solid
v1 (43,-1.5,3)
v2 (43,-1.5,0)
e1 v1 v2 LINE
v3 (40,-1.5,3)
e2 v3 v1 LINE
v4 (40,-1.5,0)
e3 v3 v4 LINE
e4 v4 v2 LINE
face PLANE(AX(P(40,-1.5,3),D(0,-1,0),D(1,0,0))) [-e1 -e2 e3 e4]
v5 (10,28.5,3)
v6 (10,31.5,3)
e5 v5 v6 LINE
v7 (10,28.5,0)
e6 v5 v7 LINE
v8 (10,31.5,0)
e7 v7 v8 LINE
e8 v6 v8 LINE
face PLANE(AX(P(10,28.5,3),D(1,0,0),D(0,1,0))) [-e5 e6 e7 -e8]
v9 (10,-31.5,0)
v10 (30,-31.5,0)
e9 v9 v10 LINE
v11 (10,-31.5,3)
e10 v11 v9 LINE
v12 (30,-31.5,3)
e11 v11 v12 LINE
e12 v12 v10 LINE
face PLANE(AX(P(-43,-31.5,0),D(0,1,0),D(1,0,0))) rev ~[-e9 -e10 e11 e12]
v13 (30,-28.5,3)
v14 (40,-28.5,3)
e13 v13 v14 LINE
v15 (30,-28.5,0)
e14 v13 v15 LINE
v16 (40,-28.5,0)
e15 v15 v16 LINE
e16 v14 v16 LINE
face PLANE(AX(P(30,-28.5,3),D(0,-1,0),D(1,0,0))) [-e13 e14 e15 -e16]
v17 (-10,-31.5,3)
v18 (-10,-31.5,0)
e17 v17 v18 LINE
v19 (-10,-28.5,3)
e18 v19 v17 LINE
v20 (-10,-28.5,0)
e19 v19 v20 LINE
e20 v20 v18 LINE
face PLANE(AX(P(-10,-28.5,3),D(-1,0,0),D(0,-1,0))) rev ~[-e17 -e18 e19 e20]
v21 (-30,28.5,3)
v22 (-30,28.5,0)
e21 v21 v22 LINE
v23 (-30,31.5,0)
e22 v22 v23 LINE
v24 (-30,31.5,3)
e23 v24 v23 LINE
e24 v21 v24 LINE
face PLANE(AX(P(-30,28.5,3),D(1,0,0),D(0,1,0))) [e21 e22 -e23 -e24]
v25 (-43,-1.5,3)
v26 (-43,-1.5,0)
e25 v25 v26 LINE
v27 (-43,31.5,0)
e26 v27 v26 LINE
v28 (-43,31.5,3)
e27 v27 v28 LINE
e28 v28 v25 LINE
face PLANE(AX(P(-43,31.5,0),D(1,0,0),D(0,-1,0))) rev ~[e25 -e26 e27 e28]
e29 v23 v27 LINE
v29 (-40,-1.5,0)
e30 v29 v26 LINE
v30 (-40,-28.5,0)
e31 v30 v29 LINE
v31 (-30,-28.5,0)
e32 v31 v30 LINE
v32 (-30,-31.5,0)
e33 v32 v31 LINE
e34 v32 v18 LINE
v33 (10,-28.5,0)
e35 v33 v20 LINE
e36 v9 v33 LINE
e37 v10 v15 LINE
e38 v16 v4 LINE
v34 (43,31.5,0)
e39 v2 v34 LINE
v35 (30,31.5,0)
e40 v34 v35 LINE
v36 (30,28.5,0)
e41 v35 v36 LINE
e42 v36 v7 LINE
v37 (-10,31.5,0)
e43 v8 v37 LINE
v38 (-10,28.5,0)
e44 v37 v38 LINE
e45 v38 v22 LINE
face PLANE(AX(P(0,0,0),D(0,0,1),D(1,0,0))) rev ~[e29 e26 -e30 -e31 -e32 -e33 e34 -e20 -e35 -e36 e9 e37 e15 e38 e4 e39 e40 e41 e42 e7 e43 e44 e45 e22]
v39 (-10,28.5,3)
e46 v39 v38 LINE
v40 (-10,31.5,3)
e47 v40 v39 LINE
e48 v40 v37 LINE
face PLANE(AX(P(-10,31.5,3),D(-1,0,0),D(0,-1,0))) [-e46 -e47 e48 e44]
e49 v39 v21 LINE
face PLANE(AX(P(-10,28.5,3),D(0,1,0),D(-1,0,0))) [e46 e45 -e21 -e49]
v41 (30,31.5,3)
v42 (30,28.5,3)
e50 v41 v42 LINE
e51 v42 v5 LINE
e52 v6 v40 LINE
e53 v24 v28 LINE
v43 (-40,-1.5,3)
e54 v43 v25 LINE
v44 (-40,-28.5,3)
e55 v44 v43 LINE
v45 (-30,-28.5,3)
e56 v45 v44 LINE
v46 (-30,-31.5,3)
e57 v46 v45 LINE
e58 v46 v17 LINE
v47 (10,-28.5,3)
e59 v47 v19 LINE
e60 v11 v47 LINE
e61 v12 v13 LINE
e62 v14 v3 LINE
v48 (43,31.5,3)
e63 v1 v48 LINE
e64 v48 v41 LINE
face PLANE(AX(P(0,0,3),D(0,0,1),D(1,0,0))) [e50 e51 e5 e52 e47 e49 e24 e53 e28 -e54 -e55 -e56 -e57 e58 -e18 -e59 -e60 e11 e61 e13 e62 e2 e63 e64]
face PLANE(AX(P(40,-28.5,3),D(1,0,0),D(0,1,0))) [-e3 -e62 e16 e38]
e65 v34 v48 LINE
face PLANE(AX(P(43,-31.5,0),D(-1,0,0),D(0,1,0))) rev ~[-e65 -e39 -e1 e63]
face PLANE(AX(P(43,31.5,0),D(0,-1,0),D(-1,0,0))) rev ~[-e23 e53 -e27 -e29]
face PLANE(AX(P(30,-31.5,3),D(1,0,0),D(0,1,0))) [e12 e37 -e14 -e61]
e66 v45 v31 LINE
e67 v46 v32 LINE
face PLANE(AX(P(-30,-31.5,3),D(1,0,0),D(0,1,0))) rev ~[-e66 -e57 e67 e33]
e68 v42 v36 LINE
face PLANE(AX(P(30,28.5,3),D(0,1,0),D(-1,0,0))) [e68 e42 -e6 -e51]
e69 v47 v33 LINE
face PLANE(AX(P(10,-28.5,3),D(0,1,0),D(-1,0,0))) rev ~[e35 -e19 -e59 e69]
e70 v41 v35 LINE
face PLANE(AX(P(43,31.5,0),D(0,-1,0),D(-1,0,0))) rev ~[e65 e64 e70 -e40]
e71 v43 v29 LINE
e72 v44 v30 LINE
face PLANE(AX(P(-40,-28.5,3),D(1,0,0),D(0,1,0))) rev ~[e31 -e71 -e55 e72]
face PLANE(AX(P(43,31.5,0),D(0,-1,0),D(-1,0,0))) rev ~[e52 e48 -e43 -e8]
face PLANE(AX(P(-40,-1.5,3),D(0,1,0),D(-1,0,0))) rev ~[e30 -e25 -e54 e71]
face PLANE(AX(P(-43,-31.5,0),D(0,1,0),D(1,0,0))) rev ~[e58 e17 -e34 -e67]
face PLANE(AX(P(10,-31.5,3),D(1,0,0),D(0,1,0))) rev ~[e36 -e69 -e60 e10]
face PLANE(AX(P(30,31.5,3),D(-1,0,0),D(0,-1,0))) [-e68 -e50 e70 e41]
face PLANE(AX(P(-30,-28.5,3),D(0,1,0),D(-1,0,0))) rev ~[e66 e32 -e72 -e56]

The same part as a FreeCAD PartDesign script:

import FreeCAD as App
import Part
import Sketcher
from FreeCAD import Vector
Q = App.Units.Quantity

doc = App.newDocument("Part")
body = doc.addObject("PartDesign::Body", "Body")

# Sketch on XY plane
sketch1 = doc.addObject("Sketcher::SketchObject", "Sketch")
body.addObject(sketch1)
sketch1.AttachmentSupport = (doc.XY_Plane, [""])
sketch1.MapMode = "FlatFace"
sketch1.addGeometry([
    Part.LineSegment(Vector(-43, 32, 0), Vector(-43, -32, 0)),
    Part.LineSegment(Vector(-43, -32, 0), Vector(43, -32, 0)),
    Part.LineSegment(Vector(43, -32, 0), Vector(43, 32, 0)),
    Part.LineSegment(Vector(43, 32, 0), Vector(-43, 32, 0)),
], False)
sketch1.addConstraint([
    Sketcher.Constraint("Coincident", 0, 2, 1, 1),
    Sketcher.Constraint("Coincident", 1, 2, 2, 1),
    Sketcher.Constraint("Coincident", 2, 2, 3, 1),
    Sketcher.Constraint("Coincident", 3, 2, 0, 1),
    Sketcher.Constraint("Vertical", 0),
    Sketcher.Constraint("Horizontal", 1),
    Sketcher.Constraint("Vertical", 2),
    Sketcher.Constraint("Horizontal", 3),
    Sketcher.Constraint("Symmetric", 0, 2, 2, 2, -1, 1),
    Sketcher.Constraint("DistanceX", 1, 1, 1, 2, Q("86 mm")),
    Sketcher.Constraint("DistanceY", 0, 2, 0, 1, Q("63 mm")),
])
pad1 = doc.addObject("PartDesign::Pad", "Pad")
body.addObject(pad1)
pad1.Profile = sketch1
pad1.Length = 3

# Sketch on XY plane
sketch2 = doc.addObject("Sketcher::SketchObject", "Sketch001")
body.addObject(sketch2)
sketch2.AttachmentSupport = (doc.XY_Plane, [""])
sketch2.MapMode = "FlatFace"
sketch2.AttachmentOffset = App.Placement(Vector(0, 0, 3), App.Rotation())
sketch2.addGeometry([
    Part.LineSegment(Vector(-43, -1.5, 0), Vector(-43, -31.5, 0)),  # 0
    Part.LineSegment(Vector(-43, -31.5, 0), Vector(-30, -31.5, 0)),  # 1
    Part.LineSegment(Vector(-30, -31.5, 0), Vector(-30, -28.5, 0)),  # 2
    Part.LineSegment(Vector(-30, -28.5, 0), Vector(-40, -28.5, 0)),  # 3
    Part.LineSegment(Vector(-40, -28.5, 0), Vector(-40, -1.5, 0)),  # 4
    Part.LineSegment(Vector(-40, -1.5, 0), Vector(-43, -1.5, 0)),  # 5
    Part.LineSegment(Vector(30, -28.5, 0), Vector(30, -31.5, 0)),  # 6
    Part.LineSegment(Vector(30, -31.5, 0), Vector(43, -31.5, 0)),  # 7
    Part.LineSegment(Vector(43, -31.5, 0), Vector(43, -1.5, 0)),  # 8
    Part.LineSegment(Vector(43, -1.5, 0), Vector(40, -1.5, 0)),  # 9
    Part.LineSegment(Vector(40, -1.5, 0), Vector(40, -28.5, 0)),  # 10
    Part.LineSegment(Vector(40, -28.5, 0), Vector(30, -28.5, 0)),  # 11
    Part.LineSegment(Vector(-10, -28.5, 0), Vector(-10, -31.5, 0)),  # 12
    Part.LineSegment(Vector(-10, -31.5, 0), Vector(10, -31.5, 0)),  # 13
    Part.LineSegment(Vector(10, -31.5, 0), Vector(10, -28.5, 0)),  # 14
    Part.LineSegment(Vector(10, -28.5, 0), Vector(-10, -28.5, 0)),  # 15
    Part.LineSegment(Vector(30, 28.5, 0), Vector(30, 31.5, 0)),  # 16
    Part.LineSegment(Vector(30, 31.5, 0), Vector(10, 31.5, 0)),  # 17
    Part.LineSegment(Vector(10, 31.5, 0), Vector(10, 28.5, 0)),  # 18
    Part.LineSegment(Vector(10, 28.5, 0), Vector(30, 28.5, 0)),  # 19
    Part.LineSegment(Vector(-10, 28.5, 0), Vector(-10, 31.5, 0)),  # 20
    Part.LineSegment(Vector(-10, 31.5, 0), Vector(-30, 31.5, 0)),  # 21
    Part.LineSegment(Vector(-30, 31.5, 0), Vector(-30, 28.5, 0)),  # 22
    Part.LineSegment(Vector(-30, 28.5, 0), Vector(-10, 28.5, 0)),  # 23
], False)
sketch2.addConstraint([
    Sketcher.Constraint("Coincident", 0, 2, 1, 1),
    Sketcher.Constraint("Coincident", 1, 2, 2, 1),
    Sketcher.Constraint("Coincident", 2, 2, 3, 1),
    Sketcher.Constraint("Coincident", 3, 2, 4, 1),
    Sketcher.Constraint("Coincident", 4, 2, 5, 1),
    Sketcher.Constraint("Coincident", 5, 2, 0, 1),
    Sketcher.Constraint("Coincident", 6, 2, 7, 1),
    Sketcher.Constraint("Coincident", 7, 2, 8, 1),
    Sketcher.Constraint("Coincident", 8, 2, 9, 1),
    Sketcher.Constraint("Coincident", 9, 2, 10, 1),
    Sketcher.Constraint("Coincident", 10, 2, 11, 1),
    Sketcher.Constraint("Coincident", 11, 2, 6, 1),
    Sketcher.Constraint("Coincident", 12, 2, 13, 1),
    Sketcher.Constraint("Coincident", 13, 2, 14, 1),
    Sketcher.Constraint("Coincident", 14, 2, 15, 1),
    Sketcher.Constraint("Coincident", 15, 2, 12, 1),
    Sketcher.Constraint("Coincident", 16, 2, 17, 1),
    Sketcher.Constraint("Coincident", 17, 2, 18, 1),
    Sketcher.Constraint("Coincident", 18, 2, 19, 1),
    Sketcher.Constraint("Coincident", 19, 2, 16, 1),
    Sketcher.Constraint("Coincident", 20, 2, 21, 1),
    Sketcher.Constraint("Coincident", 21, 2, 22, 1),
    Sketcher.Constraint("Coincident", 22, 2, 23, 1),
    Sketcher.Constraint("Coincident", 23, 2, 20, 1),
    Sketcher.Constraint("Vertical", 0),
    Sketcher.Constraint("Horizontal", 1),
    Sketcher.Constraint("Vertical", 2),
    Sketcher.Constraint("Horizontal", 3),
    Sketcher.Constraint("Vertical", 4),
    Sketcher.Constraint("Horizontal", 5),
    Sketcher.Constraint("Vertical", 6),
    Sketcher.Constraint("Horizontal", 7),
    Sketcher.Constraint("Vertical", 8),
    Sketcher.Constraint("Horizontal", 9),
    Sketcher.Constraint("Vertical", 10),
    Sketcher.Constraint("Horizontal", 11),
    Sketcher.Constraint("Vertical", 12),
    Sketcher.Constraint("Horizontal", 13),
    Sketcher.Constraint("Vertical", 14),
    Sketcher.Constraint("Horizontal", 15),
    Sketcher.Constraint("Vertical", 16),
    Sketcher.Constraint("Horizontal", 17),
    Sketcher.Constraint("Vertical", 18),
    Sketcher.Constraint("Horizontal", 19),
    Sketcher.Constraint("Vertical", 20),
    Sketcher.Constraint("Horizontal", 21),
    Sketcher.Constraint("Vertical", 22),
    Sketcher.Constraint("Horizontal", 23),
    Sketcher.Constraint("Symmetric", 1, 2, 16, 2, -1, 1),
    Sketcher.Constraint("Symmetric", 12, 2, 17, 2, -1, 1),
    Sketcher.Constraint("Symmetric", 13, 2, 20, 2, -1, 1),
    Sketcher.Constraint("Symmetric", 6, 2, 21, 2, -1, 1),
    Sketcher.Constraint("Symmetric", 5, 2, 8, 2, -2),
    Sketcher.Constraint("Symmetric", 3, 2, 10, 2, -2),
    Sketcher.Constraint("Symmetric", 19, 2, 22, 2, -2),
    Sketcher.Constraint("Symmetric", 14, 2, 18, 2, -1),
    Sketcher.Constraint("Horizontal", 11, 2, 14, 2),
    Sketcher.Constraint("Equal", 15, 17),
    Sketcher.Constraint("Equal", 9, 2),
    Sketcher.Constraint("DistanceX", 3, 2, 3, 1, Q("10 mm")),
    Sketcher.Constraint("DistanceX", 5, 2, 5, 1, Q("3 mm")),
    Sketcher.Constraint("DistanceX", 13, 1, 13, 2, Q("20 mm")),
    Sketcher.Constraint("DistanceY", 0, 2, 0, 1, Q("30 mm")),
    Sketcher.Constraint("DistanceY", 9, 2, 18, 2, Q("30 mm")),
])
pocket1 = doc.addObject("PartDesign::Pocket", "Pocket")
body.addObject(pocket1)
pocket1.Profile = sketch2
pocket1.Type = "ThroughAll"

doc.recompute()
